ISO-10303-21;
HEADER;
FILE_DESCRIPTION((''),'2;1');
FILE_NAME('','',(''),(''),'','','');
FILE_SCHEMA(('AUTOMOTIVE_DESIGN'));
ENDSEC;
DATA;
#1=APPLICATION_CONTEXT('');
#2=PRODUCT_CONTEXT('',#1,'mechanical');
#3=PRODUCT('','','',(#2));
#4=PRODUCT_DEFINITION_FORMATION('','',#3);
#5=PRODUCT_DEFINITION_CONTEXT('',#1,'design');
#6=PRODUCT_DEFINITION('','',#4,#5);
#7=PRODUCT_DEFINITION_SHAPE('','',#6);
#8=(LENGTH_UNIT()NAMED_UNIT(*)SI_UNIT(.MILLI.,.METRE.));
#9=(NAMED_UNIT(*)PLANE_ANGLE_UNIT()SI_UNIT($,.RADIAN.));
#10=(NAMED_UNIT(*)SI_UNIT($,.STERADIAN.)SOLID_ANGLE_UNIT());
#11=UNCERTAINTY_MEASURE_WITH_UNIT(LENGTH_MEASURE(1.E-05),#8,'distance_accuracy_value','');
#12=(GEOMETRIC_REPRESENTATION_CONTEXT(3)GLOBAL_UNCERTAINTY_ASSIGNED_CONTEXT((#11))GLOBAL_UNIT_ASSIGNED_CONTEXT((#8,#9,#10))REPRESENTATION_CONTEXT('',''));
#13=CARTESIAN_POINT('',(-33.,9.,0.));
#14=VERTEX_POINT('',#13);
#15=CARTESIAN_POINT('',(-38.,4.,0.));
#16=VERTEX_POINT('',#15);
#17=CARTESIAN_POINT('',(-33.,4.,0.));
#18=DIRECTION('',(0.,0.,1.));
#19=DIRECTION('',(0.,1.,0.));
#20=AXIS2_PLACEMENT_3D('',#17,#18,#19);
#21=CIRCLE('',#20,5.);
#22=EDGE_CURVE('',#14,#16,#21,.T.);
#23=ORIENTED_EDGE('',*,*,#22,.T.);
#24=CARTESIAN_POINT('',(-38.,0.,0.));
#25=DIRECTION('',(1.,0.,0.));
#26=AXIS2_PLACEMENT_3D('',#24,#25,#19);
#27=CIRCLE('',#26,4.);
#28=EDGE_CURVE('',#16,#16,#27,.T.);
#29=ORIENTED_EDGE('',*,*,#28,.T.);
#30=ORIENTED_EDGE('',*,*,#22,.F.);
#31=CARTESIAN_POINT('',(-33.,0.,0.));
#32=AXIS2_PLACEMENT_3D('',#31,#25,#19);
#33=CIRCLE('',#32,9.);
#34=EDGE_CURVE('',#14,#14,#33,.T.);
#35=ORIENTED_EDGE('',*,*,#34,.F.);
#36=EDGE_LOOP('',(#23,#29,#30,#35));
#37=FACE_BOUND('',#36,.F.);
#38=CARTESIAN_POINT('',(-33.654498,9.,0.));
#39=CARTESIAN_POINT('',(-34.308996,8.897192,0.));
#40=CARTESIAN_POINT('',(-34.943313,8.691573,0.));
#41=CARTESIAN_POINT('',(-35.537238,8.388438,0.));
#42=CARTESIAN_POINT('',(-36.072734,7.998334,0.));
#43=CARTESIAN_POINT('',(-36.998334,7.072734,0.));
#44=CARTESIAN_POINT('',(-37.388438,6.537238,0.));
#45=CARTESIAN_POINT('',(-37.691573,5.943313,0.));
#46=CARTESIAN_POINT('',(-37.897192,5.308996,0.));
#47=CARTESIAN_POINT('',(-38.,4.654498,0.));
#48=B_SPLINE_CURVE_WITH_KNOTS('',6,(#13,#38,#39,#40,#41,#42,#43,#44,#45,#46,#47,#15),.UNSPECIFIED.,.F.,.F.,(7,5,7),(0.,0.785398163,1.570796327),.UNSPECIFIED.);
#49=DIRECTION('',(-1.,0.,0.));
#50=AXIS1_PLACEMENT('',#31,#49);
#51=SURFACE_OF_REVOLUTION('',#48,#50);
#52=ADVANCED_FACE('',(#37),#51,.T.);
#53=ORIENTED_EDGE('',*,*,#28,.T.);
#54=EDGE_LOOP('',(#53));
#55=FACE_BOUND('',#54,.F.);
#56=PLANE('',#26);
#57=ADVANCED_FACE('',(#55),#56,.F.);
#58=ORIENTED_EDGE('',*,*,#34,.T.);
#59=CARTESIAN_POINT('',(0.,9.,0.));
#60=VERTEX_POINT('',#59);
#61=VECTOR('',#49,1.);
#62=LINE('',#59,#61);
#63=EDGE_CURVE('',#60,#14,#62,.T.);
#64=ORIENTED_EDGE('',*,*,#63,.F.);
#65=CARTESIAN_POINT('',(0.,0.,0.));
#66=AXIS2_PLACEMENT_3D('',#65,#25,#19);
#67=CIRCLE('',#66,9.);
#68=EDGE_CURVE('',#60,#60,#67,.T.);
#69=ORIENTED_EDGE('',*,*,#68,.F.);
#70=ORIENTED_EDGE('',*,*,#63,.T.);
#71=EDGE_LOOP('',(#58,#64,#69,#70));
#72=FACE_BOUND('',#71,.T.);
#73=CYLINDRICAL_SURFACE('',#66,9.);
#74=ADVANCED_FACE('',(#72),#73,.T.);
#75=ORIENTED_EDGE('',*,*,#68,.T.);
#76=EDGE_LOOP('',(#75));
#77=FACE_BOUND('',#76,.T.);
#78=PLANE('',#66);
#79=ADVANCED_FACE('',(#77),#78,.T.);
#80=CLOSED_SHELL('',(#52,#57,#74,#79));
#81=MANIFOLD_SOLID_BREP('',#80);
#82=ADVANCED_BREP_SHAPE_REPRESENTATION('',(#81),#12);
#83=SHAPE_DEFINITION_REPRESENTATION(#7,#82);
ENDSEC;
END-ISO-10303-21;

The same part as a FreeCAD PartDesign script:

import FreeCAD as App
import Part
import Sketcher

V = App.Vector
Q = App.Units.Quantity


def edges_at(feature, points):
    """Names of the edges that pass closest to the given points."""
    edges = feature.Shape.Edges
    near = lambda p: min(range(len(edges)), key=lambda i: edges[i].distToShape(Part.Vertex(*p))[0])
    return sorted({f"Edge{near(p) + 1}" for p in points})

doc = App.newDocument("Part")
body = doc.addObject("PartDesign::Body", "Body")

# Sketch on YZ plane
sketch1 = doc.addObject("Sketcher::SketchObject", "Sketch")
body.addObject(sketch1)
sketch1.AttachmentSupport = (doc.YZ_Plane, [""])
sketch1.MapMode = "FlatFace"
sketch1.addGeometry(Part.Circle(V(0, 0, 0), V(0, 0, 1), 9), False)
sketch1.addConstraint(Sketcher.Constraint("Coincident", 0, 3, -1, 1))
sketch1.addConstraint(Sketcher.Constraint("Diameter", 0, Q("18 mm")))
pad1 = doc.addObject("PartDesign::Pad", "Pad")
body.addObject(pad1)
pad1.Profile = sketch1
pad1.Length = 38
pad1.Reversed = True
doc.recompute()

fillet = doc.addObject("PartDesign::Fillet", "Fillet")
body.addObject(fillet)
fillet.Base = (pad1, edges_at(pad1, [(-38, -9, 0)]))
fillet.Radius = 5

doc.recompute()
